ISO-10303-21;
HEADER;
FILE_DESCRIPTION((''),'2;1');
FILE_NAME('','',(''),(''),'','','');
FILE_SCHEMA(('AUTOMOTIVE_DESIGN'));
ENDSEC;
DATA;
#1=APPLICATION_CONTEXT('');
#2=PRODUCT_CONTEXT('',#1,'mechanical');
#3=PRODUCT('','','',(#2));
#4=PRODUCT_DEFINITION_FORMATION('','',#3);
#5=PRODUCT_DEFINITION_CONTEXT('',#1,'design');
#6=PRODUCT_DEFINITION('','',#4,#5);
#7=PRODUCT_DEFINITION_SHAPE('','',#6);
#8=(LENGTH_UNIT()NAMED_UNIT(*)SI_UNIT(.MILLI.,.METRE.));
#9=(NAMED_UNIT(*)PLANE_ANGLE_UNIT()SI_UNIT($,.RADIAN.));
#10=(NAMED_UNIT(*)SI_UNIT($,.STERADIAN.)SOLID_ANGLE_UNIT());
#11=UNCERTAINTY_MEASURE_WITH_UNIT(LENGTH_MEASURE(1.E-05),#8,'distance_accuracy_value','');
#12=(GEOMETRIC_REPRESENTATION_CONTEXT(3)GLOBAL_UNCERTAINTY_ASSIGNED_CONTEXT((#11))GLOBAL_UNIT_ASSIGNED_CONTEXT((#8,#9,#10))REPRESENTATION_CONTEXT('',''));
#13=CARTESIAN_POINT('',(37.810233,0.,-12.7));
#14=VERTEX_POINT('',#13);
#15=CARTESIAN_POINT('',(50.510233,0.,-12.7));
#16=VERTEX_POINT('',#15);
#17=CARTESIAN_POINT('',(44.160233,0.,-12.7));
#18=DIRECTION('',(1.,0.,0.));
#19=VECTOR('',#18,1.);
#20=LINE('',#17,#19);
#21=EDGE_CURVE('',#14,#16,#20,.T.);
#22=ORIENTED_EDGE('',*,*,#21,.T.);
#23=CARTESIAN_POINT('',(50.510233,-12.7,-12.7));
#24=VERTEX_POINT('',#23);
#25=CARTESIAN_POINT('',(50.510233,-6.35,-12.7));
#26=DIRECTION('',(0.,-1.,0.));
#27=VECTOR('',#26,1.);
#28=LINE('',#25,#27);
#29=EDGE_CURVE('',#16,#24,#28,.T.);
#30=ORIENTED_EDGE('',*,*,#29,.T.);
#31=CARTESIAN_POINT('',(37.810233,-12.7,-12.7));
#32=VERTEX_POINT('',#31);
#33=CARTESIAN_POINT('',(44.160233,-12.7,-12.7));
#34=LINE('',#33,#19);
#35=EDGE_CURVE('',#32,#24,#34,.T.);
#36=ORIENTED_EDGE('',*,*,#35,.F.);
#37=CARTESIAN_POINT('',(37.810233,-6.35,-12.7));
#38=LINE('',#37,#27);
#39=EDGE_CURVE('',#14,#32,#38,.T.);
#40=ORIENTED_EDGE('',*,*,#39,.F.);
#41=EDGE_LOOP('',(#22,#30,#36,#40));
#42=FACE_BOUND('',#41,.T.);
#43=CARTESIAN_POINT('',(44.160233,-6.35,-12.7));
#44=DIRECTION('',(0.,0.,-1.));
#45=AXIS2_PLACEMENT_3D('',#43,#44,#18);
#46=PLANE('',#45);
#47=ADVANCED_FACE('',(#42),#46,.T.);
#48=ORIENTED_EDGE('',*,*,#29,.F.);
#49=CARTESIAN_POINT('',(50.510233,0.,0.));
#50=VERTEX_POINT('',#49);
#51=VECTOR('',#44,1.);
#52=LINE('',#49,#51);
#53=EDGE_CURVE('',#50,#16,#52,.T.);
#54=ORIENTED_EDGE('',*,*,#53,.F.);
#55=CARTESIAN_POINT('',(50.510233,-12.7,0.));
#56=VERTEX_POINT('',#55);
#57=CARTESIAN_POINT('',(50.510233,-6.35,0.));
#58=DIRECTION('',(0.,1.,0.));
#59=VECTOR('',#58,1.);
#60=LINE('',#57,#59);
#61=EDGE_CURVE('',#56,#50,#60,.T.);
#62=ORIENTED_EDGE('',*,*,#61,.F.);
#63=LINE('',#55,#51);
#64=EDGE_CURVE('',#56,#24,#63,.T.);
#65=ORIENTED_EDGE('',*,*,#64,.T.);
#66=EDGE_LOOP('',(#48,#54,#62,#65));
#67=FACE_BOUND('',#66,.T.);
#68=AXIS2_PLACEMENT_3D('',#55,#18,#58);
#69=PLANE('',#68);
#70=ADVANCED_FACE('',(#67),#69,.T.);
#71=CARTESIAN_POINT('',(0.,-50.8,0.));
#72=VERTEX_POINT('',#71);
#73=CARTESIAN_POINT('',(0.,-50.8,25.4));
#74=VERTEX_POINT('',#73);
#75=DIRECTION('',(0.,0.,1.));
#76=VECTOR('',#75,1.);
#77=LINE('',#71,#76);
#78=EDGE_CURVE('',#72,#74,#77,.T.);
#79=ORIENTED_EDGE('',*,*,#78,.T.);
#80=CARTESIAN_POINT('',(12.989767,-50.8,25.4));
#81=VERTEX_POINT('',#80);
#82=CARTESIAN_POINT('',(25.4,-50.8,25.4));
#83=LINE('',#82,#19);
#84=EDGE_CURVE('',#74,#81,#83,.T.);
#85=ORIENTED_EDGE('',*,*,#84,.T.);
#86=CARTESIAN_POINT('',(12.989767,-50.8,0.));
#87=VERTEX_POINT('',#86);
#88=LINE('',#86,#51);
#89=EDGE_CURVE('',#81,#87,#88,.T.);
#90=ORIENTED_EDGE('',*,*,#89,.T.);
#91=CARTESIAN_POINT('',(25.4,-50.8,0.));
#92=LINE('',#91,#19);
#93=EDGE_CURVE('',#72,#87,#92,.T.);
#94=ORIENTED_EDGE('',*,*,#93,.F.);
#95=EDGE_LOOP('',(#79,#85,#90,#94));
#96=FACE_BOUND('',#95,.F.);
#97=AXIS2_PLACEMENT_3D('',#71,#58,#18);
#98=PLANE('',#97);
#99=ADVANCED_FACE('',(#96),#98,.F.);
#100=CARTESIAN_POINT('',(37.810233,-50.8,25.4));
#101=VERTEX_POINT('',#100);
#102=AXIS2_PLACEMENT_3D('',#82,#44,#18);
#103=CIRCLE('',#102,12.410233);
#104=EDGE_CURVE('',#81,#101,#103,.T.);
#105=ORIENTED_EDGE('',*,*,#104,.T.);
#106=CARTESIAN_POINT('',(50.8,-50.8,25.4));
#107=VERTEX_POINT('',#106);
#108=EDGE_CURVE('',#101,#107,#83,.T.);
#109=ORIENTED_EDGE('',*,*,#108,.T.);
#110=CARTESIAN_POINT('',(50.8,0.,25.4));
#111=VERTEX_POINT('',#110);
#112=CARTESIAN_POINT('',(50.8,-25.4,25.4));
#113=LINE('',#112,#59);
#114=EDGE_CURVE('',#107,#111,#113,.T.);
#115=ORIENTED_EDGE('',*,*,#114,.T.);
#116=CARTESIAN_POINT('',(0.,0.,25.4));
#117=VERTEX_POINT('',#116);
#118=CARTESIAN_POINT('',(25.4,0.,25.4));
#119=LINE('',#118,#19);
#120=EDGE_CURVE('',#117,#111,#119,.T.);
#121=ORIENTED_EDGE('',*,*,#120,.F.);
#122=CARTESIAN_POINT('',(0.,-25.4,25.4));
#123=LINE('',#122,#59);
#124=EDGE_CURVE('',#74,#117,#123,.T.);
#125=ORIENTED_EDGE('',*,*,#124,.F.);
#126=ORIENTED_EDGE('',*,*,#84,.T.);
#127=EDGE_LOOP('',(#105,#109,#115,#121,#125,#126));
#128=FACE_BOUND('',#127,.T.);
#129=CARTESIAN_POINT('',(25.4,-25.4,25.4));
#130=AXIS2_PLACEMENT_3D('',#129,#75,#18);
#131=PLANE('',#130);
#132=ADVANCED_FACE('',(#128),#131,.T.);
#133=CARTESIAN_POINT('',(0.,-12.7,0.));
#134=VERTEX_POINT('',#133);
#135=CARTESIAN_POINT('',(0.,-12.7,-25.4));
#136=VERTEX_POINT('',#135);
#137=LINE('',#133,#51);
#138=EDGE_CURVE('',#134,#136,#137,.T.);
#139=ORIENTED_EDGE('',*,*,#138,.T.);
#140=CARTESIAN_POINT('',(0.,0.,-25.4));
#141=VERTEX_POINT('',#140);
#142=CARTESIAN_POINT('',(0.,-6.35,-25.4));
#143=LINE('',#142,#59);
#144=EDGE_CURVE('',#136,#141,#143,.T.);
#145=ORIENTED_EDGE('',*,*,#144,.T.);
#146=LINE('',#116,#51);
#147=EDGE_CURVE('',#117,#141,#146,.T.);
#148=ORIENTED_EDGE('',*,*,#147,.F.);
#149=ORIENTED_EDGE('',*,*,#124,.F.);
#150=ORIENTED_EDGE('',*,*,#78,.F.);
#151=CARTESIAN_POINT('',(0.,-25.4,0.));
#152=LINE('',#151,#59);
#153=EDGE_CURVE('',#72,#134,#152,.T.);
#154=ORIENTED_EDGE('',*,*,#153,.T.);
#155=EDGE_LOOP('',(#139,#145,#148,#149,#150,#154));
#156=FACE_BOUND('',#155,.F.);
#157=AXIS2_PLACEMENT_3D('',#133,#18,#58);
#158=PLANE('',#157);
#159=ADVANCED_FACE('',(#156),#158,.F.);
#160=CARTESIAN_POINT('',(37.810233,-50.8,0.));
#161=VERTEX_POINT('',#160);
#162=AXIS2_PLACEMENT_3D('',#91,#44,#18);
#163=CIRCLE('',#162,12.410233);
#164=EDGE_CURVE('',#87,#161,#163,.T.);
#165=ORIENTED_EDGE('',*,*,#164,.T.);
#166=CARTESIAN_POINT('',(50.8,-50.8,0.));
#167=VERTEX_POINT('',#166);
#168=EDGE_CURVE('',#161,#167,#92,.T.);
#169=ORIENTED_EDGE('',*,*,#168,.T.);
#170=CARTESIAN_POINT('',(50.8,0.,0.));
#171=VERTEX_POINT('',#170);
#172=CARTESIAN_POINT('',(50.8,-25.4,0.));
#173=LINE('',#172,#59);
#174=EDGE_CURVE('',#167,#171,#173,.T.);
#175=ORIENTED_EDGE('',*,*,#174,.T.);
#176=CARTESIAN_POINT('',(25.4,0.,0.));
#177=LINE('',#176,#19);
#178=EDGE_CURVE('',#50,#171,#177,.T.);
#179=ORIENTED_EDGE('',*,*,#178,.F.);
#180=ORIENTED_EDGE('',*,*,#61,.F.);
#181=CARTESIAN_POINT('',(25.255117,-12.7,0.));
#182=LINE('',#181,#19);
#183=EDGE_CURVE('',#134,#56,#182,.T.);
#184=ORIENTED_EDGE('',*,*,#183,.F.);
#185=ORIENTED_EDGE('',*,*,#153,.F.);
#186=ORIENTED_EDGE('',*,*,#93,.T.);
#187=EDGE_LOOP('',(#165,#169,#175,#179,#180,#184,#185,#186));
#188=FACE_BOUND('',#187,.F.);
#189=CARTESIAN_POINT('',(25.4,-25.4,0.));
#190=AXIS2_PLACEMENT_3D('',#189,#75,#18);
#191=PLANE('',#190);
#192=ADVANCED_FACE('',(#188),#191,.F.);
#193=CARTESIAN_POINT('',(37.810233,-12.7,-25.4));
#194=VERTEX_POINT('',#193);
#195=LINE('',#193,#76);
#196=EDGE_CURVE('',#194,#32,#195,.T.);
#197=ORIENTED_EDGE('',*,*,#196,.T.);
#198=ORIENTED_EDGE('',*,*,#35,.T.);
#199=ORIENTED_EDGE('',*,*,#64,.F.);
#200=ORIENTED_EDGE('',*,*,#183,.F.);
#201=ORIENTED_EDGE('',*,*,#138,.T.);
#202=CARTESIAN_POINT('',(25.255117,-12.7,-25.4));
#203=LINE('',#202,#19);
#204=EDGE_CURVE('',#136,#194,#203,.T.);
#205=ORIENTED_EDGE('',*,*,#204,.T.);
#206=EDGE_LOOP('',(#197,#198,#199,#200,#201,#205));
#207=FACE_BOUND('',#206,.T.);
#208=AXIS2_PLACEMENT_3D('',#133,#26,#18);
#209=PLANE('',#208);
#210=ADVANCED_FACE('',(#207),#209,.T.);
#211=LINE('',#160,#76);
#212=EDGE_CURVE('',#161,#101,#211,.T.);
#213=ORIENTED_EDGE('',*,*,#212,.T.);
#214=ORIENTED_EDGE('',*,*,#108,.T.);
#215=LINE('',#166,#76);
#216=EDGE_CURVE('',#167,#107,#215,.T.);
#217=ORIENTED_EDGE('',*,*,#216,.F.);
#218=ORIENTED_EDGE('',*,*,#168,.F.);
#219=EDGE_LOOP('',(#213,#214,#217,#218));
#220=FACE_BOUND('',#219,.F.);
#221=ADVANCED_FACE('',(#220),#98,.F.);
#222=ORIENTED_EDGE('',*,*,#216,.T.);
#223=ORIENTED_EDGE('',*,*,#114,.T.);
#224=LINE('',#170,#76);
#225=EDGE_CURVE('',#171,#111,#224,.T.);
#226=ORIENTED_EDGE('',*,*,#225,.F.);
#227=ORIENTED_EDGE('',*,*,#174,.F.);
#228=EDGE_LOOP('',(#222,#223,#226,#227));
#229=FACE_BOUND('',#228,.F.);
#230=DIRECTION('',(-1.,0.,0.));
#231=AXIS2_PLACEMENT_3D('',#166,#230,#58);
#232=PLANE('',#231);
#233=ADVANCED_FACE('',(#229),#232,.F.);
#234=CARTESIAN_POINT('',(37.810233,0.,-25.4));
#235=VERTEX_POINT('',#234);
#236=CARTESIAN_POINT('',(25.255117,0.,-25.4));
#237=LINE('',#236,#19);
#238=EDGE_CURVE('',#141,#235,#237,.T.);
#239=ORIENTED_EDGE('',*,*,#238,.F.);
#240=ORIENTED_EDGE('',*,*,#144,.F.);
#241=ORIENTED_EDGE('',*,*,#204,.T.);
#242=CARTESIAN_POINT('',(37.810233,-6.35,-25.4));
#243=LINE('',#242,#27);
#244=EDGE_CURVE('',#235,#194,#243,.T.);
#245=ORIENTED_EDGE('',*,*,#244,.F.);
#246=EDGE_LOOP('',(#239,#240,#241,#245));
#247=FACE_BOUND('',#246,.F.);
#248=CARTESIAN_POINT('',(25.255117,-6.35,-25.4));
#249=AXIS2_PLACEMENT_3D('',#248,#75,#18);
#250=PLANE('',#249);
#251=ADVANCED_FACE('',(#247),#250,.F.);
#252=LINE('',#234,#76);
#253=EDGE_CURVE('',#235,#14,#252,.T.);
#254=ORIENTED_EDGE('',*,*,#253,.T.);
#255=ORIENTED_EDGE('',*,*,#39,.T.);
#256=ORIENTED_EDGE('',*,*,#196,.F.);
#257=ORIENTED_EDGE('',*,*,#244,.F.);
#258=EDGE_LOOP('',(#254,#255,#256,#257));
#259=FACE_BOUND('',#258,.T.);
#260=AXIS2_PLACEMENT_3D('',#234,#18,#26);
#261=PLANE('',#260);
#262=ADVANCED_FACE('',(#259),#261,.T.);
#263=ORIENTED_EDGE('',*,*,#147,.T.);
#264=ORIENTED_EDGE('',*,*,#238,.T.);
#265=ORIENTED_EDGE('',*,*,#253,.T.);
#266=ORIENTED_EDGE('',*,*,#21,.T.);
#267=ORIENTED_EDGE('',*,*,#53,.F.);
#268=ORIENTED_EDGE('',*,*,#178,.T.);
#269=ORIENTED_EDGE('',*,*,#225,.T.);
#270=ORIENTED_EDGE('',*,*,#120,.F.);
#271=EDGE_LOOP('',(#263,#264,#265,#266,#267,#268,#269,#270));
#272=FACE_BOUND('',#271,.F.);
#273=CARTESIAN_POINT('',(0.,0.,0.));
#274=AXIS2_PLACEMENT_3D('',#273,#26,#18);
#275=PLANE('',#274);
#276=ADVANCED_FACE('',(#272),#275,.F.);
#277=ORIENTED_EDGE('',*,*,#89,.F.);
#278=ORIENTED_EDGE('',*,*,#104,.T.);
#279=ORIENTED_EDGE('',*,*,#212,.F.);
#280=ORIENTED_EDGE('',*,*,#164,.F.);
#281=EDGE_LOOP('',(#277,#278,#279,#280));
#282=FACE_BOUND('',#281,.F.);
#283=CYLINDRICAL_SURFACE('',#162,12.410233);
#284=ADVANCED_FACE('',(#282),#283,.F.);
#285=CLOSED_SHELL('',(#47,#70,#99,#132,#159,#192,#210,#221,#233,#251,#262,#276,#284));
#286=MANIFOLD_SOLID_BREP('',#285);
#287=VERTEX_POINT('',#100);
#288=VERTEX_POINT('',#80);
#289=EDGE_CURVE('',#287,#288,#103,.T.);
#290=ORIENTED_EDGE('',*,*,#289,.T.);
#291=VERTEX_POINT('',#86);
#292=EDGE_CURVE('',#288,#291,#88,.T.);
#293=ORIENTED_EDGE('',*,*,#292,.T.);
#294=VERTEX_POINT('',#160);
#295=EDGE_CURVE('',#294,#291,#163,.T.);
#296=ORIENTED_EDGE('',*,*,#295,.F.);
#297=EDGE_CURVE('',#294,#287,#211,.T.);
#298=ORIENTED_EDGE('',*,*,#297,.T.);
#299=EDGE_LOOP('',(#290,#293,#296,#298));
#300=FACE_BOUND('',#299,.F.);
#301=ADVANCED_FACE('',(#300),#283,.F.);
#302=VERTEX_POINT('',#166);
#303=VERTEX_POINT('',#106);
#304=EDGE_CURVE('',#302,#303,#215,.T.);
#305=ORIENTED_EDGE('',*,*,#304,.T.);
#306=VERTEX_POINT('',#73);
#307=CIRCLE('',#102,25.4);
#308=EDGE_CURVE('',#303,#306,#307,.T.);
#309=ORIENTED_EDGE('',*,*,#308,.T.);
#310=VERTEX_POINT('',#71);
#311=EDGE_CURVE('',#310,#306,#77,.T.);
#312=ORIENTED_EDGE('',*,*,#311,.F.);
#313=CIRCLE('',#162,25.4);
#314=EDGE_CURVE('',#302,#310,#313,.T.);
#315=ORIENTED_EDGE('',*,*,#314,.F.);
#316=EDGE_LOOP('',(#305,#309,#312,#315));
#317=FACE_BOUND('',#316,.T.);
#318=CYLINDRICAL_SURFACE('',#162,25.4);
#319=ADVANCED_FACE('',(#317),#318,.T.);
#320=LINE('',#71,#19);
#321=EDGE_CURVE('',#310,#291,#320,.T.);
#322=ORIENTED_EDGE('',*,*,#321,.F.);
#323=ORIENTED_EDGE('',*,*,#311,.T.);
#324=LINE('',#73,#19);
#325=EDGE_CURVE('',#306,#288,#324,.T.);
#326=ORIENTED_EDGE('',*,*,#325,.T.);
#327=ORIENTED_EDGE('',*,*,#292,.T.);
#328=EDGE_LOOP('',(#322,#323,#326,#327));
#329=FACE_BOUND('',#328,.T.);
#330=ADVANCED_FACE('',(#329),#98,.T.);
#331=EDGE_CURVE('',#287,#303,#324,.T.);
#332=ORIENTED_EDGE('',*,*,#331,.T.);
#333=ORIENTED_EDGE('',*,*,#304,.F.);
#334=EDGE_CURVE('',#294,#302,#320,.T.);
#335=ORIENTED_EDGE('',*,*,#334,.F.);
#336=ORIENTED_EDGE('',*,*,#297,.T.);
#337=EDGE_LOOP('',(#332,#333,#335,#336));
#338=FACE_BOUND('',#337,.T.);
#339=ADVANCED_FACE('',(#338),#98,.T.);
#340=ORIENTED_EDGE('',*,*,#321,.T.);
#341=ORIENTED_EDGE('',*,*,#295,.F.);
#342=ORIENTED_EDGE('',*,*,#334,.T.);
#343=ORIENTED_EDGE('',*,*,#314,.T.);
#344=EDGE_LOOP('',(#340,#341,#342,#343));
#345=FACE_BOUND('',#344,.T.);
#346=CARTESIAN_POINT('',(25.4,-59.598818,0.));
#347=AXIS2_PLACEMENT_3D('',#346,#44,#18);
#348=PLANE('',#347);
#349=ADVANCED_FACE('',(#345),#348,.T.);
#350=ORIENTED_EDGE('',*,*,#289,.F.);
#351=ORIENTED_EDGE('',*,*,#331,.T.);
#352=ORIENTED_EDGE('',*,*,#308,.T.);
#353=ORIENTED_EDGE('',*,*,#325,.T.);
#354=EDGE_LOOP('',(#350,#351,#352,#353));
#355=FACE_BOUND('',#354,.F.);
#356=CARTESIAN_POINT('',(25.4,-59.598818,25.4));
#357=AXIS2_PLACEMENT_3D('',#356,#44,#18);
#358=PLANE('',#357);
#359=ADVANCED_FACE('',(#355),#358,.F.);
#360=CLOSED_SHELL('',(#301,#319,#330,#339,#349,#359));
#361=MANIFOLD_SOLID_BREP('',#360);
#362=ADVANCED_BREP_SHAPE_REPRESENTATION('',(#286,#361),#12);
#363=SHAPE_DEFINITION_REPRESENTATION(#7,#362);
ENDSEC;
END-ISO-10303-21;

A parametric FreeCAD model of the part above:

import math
import FreeCAD as App
import Part
import Sketcher
Q = App.Units.Quantity


def add_polygon(sketch, points):
    """Adds a closed chain of lines whose ends are joined by coincident constraints."""
    first, n = sketch.GeometryCount, len(points)
    for a, b in zip(points, points[1:] + points[:1]):
        sketch.addGeometry(Part.LineSegment(App.Vector(*a, 0), App.Vector(*b, 0)), False)
    for i in range(n):
        sketch.addConstraint(Sketcher.Constraint("Coincident", first + i, 2, first + (i + 1) % n, 1))

doc = App.newDocument("Part")
body = doc.addObject("PartDesign::Body", "Body")

sketch1 = body.newObject("Sketcher::SketchObject", "Sketch")
sketch1.AttachmentSupport = (doc.getObject("XY_Plane"), [""])
sketch1.MapMode = "FlatFace"
add_polygon(sketch1, [(0, 0), (0, -51), (51, -51), (51, 0)])
sketch1.addConstraint([
    Sketcher.Constraint("Vertical", 0),
    Sketcher.Constraint("Horizontal", 1),
    Sketcher.Constraint("Vertical", 2),
    Sketcher.Constraint("Horizontal", 3),
    Sketcher.Constraint("Coincident", 3, 2, -1, 1),
    Sketcher.Constraint("Equal", 3, 0),
    Sketcher.Constraint("DistanceX", 1, 1, 1, 2, Q("2 in")),
])
pad1 = body.newObject("PartDesign::Pad", "Pad")
pad1.Profile = sketch1
pad1.Length = Q("1 in")

sketch2 = body.newObject("Sketcher::SketchObject", "Sketch001")
sketch2.AttachmentSupport = (doc.getObject("XY_Plane"), [""])
sketch2.MapMode = "FlatFace"
add_polygon(sketch2, [(0, 0), (0, -13), (51, -13), (51, 0)])
sketch2.addConstraint([
    Sketcher.Constraint("Vertical", 0),
    Sketcher.Constraint("Horizontal", 1),
    Sketcher.Constraint("Vertical", 2),
    Sketcher.Constraint("Horizontal", 3),
    Sketcher.Constraint("Coincident", 3, 2, -1, 1),
    Sketcher.Constraint("DistanceY", 0, 2, 0, 1, Q("0.5 in")),
    Sketcher.Constraint("DistanceX", 1, 1, 1, 2, 50.510233),
])
pad2 = body.newObject("PartDesign::Pad", "Pad001")
pad2.Profile = sketch2
pad2.Length = Q("1 in")
pad2.Reversed = True

sketch3 = body.newObject("Sketcher::SketchObject", "Sketch002")
sketch3.AttachmentSupport = (doc.getObject("XY_Plane"), [""])
sketch3.MapMode = "FlatFace"
sketch3.AttachmentOffset = App.Placement(App.Vector(0, 0, -1 * 25.4), App.Rotation())
add_polygon(sketch3, [(38, -13), (38, 0), (51, 0), (51, -13)])
sketch3.addConstraint([
    Sketcher.Constraint("Vertical", 0),
    Sketcher.Constraint("Horizontal", 1),
    Sketcher.Constraint("Vertical", 2),
    Sketcher.Constraint("Horizontal", 3),
    Sketcher.Constraint("PointOnObject", 0, 2, -1),
    Sketcher.Constraint("Equal", 3, 0),
    Sketcher.Constraint("DistanceX", 1, 1, 1, 2, Q("0.5 in")),
    Sketcher.Constraint("DistanceX", -1, 1, 0, 2, 37.810233),
])
pocket1 = body.newObject("PartDesign::Pocket", "Pocket")
pocket1.Profile = sketch3
pocket1.Length = Q("0.5 in")
pocket1.Reversed = True
body2 = doc.addObject("PartDesign::Body", "Body001")

sketch4 = body2.newObject("Sketcher::SketchObject", "Sketch003")
sketch4.AttachmentSupport = (doc.getObject("XY_Plane001"), [""])
sketch4.MapMode = "FlatFace"
sketch4.addGeometry([
    Part.LineSegment(App.Vector(0, -51, 0), App.Vector(51, -51, 0)),
    Part.ArcOfCircle(Part.Circle(App.Vector(25, -51, 0), App.Vector(0, 0, 1), 25), math.radians(180), math.radians(360)),
], False)
sketch4.addConstraint([
    Sketcher.Constraint("Coincident", 0, 1, 1, 1),
    Sketcher.Constraint("Coincident", 1, 2, 0, 2),
    Sketcher.Constraint("Horizontal", 0),
    Sketcher.Constraint("PointOnObject", 0, 1, -2),
    Sketcher.Constraint("Horizontal", 1, 3, 0, 1),
    Sketcher.Constraint("Radius", 1, Q("1 in")),
    Sketcher.Constraint("DistanceY", 1, 3, -1, 1, Q("2 in")),
])
pad3 = body2.newObject("PartDesign::Pad", "Pad002")
pad3.Profile = sketch4
pad3.Length = Q("1 in")
body3 = doc.addObject("PartDesign::Body", "Body002")

sketch5 = body3.newObject("Sketcher::SketchObject", "Sketch004")
sketch5.AttachmentSupport = (doc.getObject("XY_Plane002"), [""])
sketch5.MapMode = "FlatFace"
sketch5.addGeometry(Part.Circle(App.Vector(25, -51, 0), App.Vector(0, 0, 1), 12), False)
sketch5.addConstraint([
    Sketcher.Constraint("DistanceX", -1, 1, 0, 3, Q("1 in")),
    Sketcher.Constraint("DistanceY", 0, 3, -1, 1, Q("2 in")),
    Sketcher.Constraint("Diameter", 0, 24.820466),
])
pad4 = body3.newObject("PartDesign::Pad", "Pad003")
pad4.Profile = sketch5
pad4.Length = Q("1 in")
doc.recompute()

body4 = doc.addObject("PartDesign::Body", "Body003")
body4.BaseFeature = body3
boolean = body.newObject("PartDesign::Boolean", "Boolean")
boolean.Type = "Cut"
boolean.addObjects([body4])
doc.recompute()

sketch6 = body.newObject("Sketcher::SketchObject", "Sketch005")
sketch6.AttachmentSupport = (doc.getObject("XY_Plane"), [""])
sketch6.MapMode = "FlatFace"
sketch6.addGeometry(Part.Circle(App.Vector(25, -51, 0), App.Vector(0, 0, 1), 12), False)
sketch6.addConstraint([
    Sketcher.Constraint("DistanceX", -1, 1, 0, 3, Q("1 in")),
    Sketcher.Constraint("DistanceY", 0, 3, -1, 1, Q("2 in")),
    Sketcher.Constraint("Diameter", 0, 24.820466),
])
pocket2 = body.newObject("PartDesign::Pocket", "Pocket001")
pocket2.Profile = sketch6
pocket2.Length = Q("1 in")
pocket2.Reversed = True

sketch7 = body.newObject("Sketcher::SketchObject", "Sketch006")
sketch7.AttachmentSupport = (doc.getObject("XY_Plane"), [""])
sketch7.MapMode = "FlatFace"
sketch7.addGeometry(Part.Circle(App.Vector(25, -51, 0), App.Vector(0, 0, 1), 12), False)
sketch7.addConstraint([
    Sketcher.Constraint("DistanceX", -1, 1, 0, 3, Q("1 in")),
    Sketcher.Constraint("DistanceY", 0, 3, -1, 1, Q("2 in")),
    Sketcher.Constraint("Diameter", 0, 24.820466),
])
pocket3 = body.newObject("PartDesign::Pocket", "Pocket002")
pocket3.Profile = sketch7
pocket3.Length = Q("1 in")
pocket3.Reversed = True
doc.recompute()

boolean2 = body2.newObject("PartDesign::Boolean", "Boolean001")
boolean2.Type = "Cut"
boolean2.addObjects([body3])

doc.recompute()
